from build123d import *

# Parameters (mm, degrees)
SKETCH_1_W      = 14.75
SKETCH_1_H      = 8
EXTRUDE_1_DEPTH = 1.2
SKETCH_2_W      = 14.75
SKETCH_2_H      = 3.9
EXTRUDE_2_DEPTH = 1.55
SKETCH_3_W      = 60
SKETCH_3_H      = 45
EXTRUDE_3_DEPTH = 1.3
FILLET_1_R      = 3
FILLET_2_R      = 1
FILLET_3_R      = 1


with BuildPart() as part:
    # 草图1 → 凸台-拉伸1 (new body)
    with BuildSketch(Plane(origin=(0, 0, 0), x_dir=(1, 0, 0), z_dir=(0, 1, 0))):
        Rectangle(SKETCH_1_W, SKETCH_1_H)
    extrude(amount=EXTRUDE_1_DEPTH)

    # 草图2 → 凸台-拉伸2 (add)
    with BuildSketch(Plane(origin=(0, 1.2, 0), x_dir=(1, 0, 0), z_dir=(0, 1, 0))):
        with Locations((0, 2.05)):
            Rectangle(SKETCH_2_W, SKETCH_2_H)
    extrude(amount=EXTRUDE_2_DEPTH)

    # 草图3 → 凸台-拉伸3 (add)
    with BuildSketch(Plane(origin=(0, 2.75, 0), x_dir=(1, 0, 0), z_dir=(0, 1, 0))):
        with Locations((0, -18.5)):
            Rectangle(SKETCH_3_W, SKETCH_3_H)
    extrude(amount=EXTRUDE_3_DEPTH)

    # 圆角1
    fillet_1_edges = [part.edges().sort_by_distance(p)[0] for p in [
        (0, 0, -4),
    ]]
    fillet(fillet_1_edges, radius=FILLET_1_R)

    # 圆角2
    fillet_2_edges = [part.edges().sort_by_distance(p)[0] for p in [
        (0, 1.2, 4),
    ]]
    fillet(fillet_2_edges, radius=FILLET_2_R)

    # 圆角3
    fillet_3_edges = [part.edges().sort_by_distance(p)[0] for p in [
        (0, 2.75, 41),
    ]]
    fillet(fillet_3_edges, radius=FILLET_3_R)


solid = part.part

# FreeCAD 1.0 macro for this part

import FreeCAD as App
import Part
import Sketcher


def edges_at(feature, points):
    """Names of the edges that pass closest to the given points."""
    edges = feature.Shape.Edges
    near = lambda p: min(range(len(edges)), key=lambda i: edges[i].distToShape(Part.Vertex(*p))[0])
    return sorted({f"Edge{near(p) + 1}" for p in points})


def add_polygon(sketch, points):
    """Adds a closed chain of lines whose ends are joined by coincident constraints."""
    first, n = sketch.GeometryCount, len(points)
    for a, b in zip(points, points[1:] + points[:1]):
        sketch.addGeometry(Part.LineSegment(App.Vector(*a, 0), App.Vector(*b, 0)), False)
    for i in range(n):
        sketch.addConstraint(Sketcher.Constraint("Coincident", first + i, 2, first + (i + 1) % n, 1))

doc = App.newDocument("Part")
body = doc.addObject("PartDesign::Body", "Body")

sketch1 = body.newObject("Sketcher::SketchObject", "Sketch")
sketch1.AttachmentSupport = (doc.getObject("XZ_Plane"), [""])
sketch1.MapMode = "FlatFace"
add_polygon(sketch1, [(-7, -4), (-7, 4), (7, 4), (7, -4)])
sketch1.addConstraint([
    Sketcher.Constraint("Vertical", 0),
    Sketcher.Constraint("Horizontal", 1),
    Sketcher.Constraint("Vertical", 2),
    Sketcher.Constraint("Horizontal", 3),
    Sketcher.Constraint("Symmetric", 0, 2, 2, 2, -1, 1),
    Sketcher.Constraint("DistanceY", 0, 1, 0, 2, 8.0),
    Sketcher.Constraint("DistanceX", 1, 1, 1, 2, 14.75),
])
pad1 = body.newObject("PartDesign::Pad", "Pad")
pad1.Profile = sketch1
pad1.Length = 1.2
pad1.Reversed = True

sketch2 = body.newObject("Sketcher::SketchObject", "Sketch001")
sketch2.AttachmentSupport = (doc.getObject("XZ_Plane"), [""])
sketch2.MapMode = "FlatFace"
sketch2.AttachmentOffset = App.Placement(App.Vector(0, 0, -1.2), App.Rotation())
add_polygon(sketch2, [(-7.4, -4), (-7.4, -0.1), (7.4, -0.1), (7.4, -4)])
sketch2.addConstraint([
    Sketcher.Constraint("Vertical", 0),
    Sketcher.Constraint("Horizontal", 1),
    Sketcher.Constraint("Vertical", 2),
    Sketcher.Constraint("Horizontal", 3),
    Sketcher.Constraint("DistanceY", 0, 1, 0, 2, 3.9),
    Sketcher.Constraint("DistanceY", 2, 2, -1, 1, 4.0),
    Sketcher.Constraint("DistanceX", 1, 1, 1, 2, 14.75),
    Sketcher.Constraint("DistanceX", 0, 2, -1, 1, 7.375),
])
pad2 = body.newObject("PartDesign::Pad", "Pad001")
pad2.Profile = sketch2
pad2.Length = 1.55
pad2.Reversed = True

sketch3 = body.newObject("Sketcher::SketchObject", "Sketch002")
sketch3.AttachmentSupport = (doc.getObject("XZ_Plane"), [""])
sketch3.MapMode = "FlatFace"
sketch3.AttachmentOffset = App.Placement(App.Vector(0, 0, -2.75), App.Rotation())
add_polygon(sketch3, [(-30, -4), (-30, 41), (30, 41), (30, -4)])
sketch3.addConstraint([
    Sketcher.Constraint("Vertical", 0),
    Sketcher.Constraint("Horizontal", 1),
    Sketcher.Constraint("Vertical", 2),
    Sketcher.Constraint("Horizontal", 3),
    Sketcher.Constraint("DistanceX", 1, 1, 1, 2, 60.0),
    Sketcher.Constraint("DistanceY", 0, 1, 0, 2, 45.0),
    Sketcher.Constraint("DistanceX", 0, 2, -1, 1, 30.0),
    Sketcher.Constraint("DistanceY", -1, 1, 0, 2, 41.0),
])
pad3 = body.newObject("PartDesign::Pad", "Pad002")
pad3.Profile = sketch3
pad3.Length = 1.3
pad3.Reversed = True
doc.recompute()

fillet = body.newObject("PartDesign::Fillet", "Fillet")
fillet.Base = (pad3, edges_at(pad3, [(0, 0, -4)]))
fillet.Radius = 3
doc.recompute()

fillet2 = body.newObject("PartDesign::Fillet", "Fillet001")
fillet2.Base = (fillet, edges_at(fillet, [(0, 1.2, 4)]))
fillet2.Radius = 1
doc.recompute()

fillet3 = body.newObject("PartDesign::Fillet", "Fillet002")
fillet3.Base = (fillet2, edges_at(fillet2, [(0, 2.75, 41)]))
fillet3.Radius = 1

doc.recompute()
